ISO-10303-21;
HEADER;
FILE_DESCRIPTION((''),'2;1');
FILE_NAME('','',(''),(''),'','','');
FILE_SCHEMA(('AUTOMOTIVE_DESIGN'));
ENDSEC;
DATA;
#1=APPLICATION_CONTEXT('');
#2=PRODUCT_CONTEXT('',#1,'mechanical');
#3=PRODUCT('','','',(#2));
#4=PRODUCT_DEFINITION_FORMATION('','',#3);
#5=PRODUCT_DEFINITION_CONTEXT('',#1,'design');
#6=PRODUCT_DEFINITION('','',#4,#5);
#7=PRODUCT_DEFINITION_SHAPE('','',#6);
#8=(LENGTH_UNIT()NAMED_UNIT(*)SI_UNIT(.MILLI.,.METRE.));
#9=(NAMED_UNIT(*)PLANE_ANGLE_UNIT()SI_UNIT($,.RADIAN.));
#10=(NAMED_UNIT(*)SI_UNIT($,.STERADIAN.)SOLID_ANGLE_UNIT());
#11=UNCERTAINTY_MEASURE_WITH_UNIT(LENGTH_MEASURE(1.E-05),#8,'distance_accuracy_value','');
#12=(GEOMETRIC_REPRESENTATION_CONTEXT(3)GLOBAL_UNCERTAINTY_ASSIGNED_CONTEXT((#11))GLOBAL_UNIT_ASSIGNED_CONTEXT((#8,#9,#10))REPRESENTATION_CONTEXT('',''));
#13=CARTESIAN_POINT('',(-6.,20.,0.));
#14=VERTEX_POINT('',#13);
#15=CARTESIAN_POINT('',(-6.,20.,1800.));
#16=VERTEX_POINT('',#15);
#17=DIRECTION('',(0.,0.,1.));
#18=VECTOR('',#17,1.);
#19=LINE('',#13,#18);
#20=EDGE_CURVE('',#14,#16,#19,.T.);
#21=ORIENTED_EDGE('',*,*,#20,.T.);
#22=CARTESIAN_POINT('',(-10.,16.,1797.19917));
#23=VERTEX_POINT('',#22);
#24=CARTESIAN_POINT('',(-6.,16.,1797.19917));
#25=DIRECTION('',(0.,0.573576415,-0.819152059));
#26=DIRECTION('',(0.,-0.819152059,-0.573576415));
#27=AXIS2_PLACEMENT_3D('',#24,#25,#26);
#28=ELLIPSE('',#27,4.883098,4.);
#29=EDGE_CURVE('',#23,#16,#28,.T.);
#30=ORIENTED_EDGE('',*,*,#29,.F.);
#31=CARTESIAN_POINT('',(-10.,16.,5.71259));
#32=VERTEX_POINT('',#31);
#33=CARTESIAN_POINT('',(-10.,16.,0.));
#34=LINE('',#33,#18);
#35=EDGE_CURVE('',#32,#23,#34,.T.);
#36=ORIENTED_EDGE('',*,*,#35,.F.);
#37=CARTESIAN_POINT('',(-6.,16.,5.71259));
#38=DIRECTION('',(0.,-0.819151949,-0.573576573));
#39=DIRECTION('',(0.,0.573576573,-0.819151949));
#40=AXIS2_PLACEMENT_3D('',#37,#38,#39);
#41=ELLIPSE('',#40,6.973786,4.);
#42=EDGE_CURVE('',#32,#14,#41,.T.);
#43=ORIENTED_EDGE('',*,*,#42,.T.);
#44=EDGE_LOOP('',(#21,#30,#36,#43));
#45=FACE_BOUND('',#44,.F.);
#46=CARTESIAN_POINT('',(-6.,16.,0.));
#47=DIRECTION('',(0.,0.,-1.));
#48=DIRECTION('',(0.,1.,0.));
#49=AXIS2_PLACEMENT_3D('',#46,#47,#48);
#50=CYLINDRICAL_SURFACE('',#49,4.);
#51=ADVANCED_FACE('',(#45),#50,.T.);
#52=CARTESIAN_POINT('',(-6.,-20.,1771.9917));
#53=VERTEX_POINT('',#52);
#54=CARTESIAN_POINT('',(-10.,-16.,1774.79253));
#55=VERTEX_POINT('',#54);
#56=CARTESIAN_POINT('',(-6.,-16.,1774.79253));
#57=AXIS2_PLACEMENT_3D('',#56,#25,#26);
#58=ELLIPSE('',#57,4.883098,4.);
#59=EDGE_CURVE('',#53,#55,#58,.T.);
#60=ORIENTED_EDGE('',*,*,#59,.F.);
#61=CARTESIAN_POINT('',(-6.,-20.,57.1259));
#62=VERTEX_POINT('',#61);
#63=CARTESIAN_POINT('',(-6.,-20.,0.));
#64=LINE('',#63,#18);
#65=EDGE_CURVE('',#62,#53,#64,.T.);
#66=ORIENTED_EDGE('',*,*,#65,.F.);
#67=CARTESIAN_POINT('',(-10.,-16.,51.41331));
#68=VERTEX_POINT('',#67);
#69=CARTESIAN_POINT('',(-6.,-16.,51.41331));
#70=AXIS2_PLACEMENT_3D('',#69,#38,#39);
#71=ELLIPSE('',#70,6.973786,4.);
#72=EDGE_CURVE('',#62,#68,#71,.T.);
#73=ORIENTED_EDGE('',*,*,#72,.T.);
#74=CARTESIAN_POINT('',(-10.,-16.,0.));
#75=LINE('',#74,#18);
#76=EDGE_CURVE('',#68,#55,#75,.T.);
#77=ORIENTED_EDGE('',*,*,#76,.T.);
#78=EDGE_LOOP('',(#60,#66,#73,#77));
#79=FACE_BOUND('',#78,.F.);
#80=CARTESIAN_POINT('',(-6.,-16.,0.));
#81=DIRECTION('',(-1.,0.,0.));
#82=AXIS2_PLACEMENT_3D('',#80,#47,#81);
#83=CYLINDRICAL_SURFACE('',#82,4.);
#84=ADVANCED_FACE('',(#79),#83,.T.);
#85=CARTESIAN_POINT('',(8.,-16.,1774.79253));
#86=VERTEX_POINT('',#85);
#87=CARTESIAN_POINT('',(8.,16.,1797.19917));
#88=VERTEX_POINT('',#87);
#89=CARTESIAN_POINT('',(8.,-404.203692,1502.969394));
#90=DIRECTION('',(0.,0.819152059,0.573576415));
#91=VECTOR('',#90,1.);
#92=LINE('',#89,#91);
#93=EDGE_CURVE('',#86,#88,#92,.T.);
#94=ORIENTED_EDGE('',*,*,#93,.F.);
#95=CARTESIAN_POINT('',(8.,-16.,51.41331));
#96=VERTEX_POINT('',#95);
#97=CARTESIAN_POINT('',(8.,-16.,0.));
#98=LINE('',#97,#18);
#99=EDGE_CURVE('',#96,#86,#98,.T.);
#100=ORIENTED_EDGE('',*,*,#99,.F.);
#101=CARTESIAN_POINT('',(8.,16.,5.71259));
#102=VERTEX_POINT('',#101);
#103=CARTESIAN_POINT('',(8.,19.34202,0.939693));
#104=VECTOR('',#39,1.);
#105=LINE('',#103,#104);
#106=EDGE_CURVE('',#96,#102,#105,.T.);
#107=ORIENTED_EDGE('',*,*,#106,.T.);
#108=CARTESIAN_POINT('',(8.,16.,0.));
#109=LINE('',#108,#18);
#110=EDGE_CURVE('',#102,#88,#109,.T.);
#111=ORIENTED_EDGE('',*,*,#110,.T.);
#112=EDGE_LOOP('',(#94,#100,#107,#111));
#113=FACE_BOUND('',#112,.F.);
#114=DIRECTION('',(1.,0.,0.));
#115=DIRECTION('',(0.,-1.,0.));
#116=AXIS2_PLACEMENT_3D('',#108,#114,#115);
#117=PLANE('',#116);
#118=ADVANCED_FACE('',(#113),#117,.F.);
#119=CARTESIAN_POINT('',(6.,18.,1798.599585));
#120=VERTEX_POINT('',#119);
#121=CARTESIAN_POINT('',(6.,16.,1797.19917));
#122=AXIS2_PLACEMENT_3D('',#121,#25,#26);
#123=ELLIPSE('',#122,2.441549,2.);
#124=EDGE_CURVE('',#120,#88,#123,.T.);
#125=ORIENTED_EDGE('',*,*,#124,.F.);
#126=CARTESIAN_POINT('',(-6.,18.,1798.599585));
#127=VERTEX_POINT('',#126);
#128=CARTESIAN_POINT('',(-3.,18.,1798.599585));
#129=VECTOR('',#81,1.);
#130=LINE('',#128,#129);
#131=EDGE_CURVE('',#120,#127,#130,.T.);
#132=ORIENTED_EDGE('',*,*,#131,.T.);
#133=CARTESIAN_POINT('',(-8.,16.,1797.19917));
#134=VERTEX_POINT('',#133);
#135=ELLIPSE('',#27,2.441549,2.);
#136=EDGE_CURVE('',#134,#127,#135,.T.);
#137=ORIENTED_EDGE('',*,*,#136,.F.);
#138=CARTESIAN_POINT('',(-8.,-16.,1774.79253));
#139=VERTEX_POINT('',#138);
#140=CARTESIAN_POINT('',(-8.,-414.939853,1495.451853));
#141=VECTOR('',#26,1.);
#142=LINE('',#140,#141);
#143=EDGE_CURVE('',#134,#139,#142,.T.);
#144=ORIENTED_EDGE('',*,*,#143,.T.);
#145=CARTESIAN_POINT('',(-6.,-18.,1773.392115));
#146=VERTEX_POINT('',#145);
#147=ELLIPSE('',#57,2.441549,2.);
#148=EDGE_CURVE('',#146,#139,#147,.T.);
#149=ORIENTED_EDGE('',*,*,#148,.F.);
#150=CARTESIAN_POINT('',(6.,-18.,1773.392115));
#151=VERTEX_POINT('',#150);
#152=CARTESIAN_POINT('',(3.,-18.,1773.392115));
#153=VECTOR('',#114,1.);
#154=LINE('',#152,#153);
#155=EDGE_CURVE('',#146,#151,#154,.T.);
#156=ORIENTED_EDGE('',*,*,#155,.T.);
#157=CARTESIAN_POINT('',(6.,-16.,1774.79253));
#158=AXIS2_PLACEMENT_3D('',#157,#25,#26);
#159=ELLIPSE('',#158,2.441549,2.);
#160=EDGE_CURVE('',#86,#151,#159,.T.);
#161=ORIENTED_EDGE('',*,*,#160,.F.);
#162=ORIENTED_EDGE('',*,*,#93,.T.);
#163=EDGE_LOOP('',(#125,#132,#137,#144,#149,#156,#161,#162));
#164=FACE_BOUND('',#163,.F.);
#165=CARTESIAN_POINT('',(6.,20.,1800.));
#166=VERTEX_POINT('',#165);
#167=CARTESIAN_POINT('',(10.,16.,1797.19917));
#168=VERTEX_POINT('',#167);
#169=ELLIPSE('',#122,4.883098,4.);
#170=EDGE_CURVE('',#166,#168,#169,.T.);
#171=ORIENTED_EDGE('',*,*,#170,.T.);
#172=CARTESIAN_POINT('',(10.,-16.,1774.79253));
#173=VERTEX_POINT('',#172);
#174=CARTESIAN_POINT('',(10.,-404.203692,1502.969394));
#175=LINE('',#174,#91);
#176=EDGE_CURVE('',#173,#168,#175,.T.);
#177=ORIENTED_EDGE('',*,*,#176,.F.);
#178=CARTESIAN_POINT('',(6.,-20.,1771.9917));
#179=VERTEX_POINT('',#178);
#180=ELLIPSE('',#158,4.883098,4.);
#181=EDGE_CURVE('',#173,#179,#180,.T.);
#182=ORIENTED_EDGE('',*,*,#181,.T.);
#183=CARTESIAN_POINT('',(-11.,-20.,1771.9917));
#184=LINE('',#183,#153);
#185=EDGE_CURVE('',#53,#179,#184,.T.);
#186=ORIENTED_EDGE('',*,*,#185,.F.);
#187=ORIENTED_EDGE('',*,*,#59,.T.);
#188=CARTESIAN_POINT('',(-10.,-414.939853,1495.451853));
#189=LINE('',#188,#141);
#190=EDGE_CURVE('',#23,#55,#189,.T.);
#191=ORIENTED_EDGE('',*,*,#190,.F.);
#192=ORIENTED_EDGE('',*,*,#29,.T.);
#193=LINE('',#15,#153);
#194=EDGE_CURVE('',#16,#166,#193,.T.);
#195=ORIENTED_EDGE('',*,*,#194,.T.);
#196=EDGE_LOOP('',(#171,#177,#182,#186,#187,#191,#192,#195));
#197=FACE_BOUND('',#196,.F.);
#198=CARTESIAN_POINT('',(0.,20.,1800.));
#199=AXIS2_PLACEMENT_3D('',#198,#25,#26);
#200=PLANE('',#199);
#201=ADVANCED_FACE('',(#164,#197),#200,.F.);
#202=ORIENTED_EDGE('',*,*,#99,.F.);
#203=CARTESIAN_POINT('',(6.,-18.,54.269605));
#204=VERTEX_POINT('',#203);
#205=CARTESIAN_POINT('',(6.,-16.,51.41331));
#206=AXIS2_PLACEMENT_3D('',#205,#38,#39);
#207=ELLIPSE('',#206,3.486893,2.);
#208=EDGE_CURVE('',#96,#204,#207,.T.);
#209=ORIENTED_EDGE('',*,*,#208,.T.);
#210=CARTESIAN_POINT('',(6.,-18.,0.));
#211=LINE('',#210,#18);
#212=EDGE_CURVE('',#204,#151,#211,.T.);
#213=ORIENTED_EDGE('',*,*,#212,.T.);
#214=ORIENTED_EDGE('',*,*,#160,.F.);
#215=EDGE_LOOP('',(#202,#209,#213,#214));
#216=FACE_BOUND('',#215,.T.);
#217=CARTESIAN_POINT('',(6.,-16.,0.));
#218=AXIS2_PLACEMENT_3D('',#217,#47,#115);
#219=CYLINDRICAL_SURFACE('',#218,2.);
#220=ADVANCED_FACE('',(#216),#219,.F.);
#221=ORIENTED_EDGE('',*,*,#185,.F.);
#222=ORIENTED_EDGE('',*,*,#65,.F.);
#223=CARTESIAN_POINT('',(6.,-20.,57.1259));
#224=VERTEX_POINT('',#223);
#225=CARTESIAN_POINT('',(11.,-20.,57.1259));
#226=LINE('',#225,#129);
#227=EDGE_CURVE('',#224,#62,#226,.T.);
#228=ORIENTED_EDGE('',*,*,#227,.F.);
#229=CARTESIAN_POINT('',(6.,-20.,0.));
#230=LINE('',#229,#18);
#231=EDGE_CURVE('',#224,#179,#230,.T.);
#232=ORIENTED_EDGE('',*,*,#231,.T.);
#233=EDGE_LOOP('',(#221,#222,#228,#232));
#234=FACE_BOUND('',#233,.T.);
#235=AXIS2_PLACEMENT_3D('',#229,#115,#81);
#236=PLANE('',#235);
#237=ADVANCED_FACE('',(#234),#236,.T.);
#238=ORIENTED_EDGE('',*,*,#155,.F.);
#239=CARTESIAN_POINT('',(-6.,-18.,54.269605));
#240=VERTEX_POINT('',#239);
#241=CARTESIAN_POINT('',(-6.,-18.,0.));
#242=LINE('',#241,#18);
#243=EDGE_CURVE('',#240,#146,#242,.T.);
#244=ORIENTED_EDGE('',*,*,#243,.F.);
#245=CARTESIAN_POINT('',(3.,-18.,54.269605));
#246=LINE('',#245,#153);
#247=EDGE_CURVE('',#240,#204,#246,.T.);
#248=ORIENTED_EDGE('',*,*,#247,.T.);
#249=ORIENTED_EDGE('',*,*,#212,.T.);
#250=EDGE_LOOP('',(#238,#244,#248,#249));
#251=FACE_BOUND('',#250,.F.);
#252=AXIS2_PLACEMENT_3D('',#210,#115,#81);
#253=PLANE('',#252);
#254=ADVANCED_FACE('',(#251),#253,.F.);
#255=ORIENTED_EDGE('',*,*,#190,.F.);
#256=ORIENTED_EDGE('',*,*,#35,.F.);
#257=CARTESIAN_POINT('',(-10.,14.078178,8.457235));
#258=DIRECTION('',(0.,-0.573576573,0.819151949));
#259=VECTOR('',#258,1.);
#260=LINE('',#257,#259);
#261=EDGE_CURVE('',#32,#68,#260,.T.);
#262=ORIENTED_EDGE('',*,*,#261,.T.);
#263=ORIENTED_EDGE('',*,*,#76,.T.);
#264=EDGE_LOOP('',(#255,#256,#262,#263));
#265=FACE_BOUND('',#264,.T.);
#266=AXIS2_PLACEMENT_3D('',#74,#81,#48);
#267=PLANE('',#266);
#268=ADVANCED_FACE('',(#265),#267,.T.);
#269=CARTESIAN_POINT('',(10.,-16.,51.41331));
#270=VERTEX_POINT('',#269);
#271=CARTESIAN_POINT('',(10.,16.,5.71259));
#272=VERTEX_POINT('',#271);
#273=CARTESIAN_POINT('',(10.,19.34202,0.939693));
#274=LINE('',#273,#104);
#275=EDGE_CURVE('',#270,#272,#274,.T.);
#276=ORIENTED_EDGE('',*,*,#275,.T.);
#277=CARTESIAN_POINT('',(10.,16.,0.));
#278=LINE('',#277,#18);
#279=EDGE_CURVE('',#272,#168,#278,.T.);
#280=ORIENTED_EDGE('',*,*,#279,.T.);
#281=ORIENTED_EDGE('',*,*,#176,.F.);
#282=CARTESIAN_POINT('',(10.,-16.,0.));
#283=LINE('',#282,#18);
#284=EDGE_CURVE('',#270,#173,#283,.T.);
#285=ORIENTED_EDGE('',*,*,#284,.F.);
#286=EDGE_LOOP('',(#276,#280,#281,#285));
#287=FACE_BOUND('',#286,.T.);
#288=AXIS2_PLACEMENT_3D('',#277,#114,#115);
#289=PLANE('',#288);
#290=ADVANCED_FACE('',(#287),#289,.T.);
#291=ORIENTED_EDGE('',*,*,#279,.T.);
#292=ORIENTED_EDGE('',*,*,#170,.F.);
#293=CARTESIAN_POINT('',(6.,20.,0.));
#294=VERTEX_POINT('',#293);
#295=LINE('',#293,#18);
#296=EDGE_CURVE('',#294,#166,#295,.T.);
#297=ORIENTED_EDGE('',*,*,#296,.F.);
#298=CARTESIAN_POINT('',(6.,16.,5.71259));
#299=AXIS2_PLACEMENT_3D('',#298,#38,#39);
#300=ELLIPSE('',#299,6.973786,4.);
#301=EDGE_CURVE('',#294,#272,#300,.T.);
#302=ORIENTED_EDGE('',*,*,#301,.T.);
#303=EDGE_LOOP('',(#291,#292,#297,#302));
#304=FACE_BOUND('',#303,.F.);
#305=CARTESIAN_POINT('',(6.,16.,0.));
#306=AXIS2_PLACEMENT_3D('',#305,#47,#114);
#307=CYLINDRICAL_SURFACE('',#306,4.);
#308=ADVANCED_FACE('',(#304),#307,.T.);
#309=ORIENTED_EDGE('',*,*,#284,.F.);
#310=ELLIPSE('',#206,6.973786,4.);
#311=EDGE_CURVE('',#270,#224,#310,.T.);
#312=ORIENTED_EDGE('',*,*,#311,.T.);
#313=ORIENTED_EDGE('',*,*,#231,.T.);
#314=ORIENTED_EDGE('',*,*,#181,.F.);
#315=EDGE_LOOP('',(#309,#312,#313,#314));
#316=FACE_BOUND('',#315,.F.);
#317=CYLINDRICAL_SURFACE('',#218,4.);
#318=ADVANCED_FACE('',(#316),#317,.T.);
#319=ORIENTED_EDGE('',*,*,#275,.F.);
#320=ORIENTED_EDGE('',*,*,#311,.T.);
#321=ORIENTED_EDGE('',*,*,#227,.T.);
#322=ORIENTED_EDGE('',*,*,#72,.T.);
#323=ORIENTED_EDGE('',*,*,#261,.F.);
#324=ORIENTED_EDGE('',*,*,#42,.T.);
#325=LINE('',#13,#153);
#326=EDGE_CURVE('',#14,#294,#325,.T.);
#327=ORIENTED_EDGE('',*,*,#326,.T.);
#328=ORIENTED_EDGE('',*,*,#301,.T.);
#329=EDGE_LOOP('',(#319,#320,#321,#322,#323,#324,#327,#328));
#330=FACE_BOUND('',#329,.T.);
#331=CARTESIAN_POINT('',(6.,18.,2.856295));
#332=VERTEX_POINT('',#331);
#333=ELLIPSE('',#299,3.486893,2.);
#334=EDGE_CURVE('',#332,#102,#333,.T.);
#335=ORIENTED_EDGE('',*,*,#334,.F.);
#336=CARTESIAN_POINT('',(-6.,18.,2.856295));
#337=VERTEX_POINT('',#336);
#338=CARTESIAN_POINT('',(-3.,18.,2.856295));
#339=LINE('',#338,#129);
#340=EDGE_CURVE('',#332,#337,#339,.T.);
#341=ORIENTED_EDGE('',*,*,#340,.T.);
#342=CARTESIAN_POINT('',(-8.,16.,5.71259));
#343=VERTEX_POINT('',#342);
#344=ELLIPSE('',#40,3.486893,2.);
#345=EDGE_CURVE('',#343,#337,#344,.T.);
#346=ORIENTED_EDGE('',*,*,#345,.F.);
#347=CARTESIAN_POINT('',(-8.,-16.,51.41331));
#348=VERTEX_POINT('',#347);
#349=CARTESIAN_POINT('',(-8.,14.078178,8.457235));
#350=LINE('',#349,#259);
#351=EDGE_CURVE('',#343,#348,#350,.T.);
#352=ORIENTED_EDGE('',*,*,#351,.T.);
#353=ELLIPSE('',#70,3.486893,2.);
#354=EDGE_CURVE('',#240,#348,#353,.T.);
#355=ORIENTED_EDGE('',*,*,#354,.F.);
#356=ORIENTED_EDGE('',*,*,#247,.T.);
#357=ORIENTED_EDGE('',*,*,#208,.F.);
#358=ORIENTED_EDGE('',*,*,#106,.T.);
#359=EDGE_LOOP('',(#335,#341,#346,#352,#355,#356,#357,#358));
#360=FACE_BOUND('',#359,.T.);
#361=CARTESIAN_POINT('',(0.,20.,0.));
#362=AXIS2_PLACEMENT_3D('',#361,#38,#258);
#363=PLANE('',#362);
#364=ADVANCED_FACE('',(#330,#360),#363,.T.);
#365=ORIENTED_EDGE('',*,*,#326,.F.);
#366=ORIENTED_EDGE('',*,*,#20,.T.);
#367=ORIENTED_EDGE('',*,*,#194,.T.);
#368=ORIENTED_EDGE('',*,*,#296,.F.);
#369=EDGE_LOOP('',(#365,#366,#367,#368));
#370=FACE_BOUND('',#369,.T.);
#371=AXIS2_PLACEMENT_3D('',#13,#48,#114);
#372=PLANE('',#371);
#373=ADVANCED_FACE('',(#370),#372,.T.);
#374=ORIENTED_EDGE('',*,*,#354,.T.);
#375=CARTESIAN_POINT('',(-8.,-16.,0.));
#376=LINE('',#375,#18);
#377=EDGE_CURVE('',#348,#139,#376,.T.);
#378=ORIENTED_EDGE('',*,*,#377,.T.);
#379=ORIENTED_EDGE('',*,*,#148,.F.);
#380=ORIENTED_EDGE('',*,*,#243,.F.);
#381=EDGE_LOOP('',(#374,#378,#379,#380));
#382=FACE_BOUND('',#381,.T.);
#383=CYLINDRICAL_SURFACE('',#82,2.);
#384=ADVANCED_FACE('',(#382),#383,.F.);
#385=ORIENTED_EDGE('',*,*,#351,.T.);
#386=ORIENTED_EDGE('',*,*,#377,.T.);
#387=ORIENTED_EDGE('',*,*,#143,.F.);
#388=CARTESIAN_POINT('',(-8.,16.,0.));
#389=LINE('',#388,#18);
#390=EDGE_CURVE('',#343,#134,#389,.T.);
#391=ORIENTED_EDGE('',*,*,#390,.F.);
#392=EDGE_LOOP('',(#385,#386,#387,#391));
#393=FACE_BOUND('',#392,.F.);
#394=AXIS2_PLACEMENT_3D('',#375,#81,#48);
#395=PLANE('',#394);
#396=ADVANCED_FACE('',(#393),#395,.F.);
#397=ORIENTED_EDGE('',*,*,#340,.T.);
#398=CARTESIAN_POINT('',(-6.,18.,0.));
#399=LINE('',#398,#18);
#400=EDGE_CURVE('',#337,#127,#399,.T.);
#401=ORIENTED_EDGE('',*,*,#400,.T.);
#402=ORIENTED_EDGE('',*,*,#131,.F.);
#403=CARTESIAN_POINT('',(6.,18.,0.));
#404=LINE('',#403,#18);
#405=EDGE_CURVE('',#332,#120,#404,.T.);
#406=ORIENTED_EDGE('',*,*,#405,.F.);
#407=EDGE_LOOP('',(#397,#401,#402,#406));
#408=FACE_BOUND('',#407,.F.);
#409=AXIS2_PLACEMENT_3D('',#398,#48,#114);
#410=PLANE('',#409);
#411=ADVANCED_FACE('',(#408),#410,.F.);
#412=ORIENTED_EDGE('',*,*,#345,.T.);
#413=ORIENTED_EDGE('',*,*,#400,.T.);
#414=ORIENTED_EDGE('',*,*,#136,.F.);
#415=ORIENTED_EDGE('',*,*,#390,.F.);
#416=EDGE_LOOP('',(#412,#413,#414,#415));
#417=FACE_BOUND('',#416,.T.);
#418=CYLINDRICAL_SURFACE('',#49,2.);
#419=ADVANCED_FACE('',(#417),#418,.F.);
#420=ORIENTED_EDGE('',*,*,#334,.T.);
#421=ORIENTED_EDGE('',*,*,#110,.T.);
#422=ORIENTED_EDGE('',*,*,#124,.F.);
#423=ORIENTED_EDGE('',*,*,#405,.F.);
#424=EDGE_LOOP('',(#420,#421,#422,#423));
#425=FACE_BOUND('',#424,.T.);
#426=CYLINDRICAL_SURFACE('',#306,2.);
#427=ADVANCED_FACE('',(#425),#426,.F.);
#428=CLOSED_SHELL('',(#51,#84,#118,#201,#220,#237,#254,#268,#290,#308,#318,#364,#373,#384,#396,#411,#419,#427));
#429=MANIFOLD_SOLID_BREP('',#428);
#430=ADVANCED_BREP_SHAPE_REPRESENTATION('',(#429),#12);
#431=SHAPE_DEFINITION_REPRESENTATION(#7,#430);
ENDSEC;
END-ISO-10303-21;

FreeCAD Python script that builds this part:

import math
import FreeCAD as App
import Part
import Sketcher
from FreeCAD import Vector
Q = App.Units.Quantity


def add_polygon(sketch, points):
    """Adds a closed chain of lines whose ends are joined by coincident constraints."""
    first, n = sketch.GeometryCount, len(points)
    for a, b in zip(points, points[1:] + points[:1]):
        sketch.addGeometry(Part.LineSegment(App.Vector(*a, 0), App.Vector(*b, 0)), False)
    for i in range(n):
        sketch.addConstraint(Sketcher.Constraint("Coincident", first + i, 2, first + (i + 1) % n, 1))

doc = App.newDocument("Part")
body = doc.addObject("PartDesign::Body", "Body")

sketch1 = body.newObject("Sketcher::SketchObject", "Sketch")
sketch1.AttachmentSupport = (doc.getObject("XY_Plane"), [""])
sketch1.MapMode = "FlatFace"
sketch1.addGeometry([
    Part.LineSegment(Vector(-10, 16, 0), Vector(-10, -16, 0)),
    Part.ArcOfCircle(Part.Circle(Vector(-6, -16, 0), Vector(0, 0, 1), 4), math.radians(180), math.radians(270)),
    Part.LineSegment(Vector(-6, -20, 0), Vector(6, -20, 0)),
    Part.ArcOfCircle(Part.Circle(Vector(6, -16, 0), Vector(0, 0, 1), 4), math.radians(-90), math.radians(0)),
    Part.LineSegment(Vector(10, -16, 0), Vector(10, 16, 0)),
    Part.ArcOfCircle(Part.Circle(Vector(6, 16, 0), Vector(0, 0, 1), 4), math.radians(0), math.radians(90)),
    Part.LineSegment(Vector(6, 20, 0), Vector(-6, 20, 0)),
    Part.ArcOfCircle(Part.Circle(Vector(-6, 16, 0), Vector(0, 0, 1), 4), math.radians(90), math.radians(180)),
    Part.ArcOfCircle(Part.Circle(Vector(-6, 16, 0), Vector(0, 0, 1), 2), math.radians(90), math.radians(180)),
    Part.LineSegment(Vector(-6, 18, 0), Vector(6, 18, 0)),
    Part.ArcOfCircle(Part.Circle(Vector(6, 16, 0), Vector(0, 0, 1), 2), math.radians(0), math.radians(90)),
    Part.LineSegment(Vector(8, 16, 0), Vector(8, -16, 0)),
    Part.ArcOfCircle(Part.Circle(Vector(6, -16, 0), Vector(0, 0, 1), 2), math.radians(-90), math.radians(0)),
    Part.LineSegment(Vector(6, -18, 0), Vector(-6, -18, 0)),
    Part.ArcOfCircle(Part.Circle(Vector(-6, -16, 0), Vector(0, 0, 1), 2), math.radians(180), math.radians(270)),
    Part.LineSegment(Vector(-8, -16, 0), Vector(-8, 16, 0)),
], False)
sketch1.addConstraint([
    Sketcher.Constraint("Tangent", 0, 2, 1, 1),
    Sketcher.Constraint("Tangent", 1, 2, 2, 1),
    Sketcher.Constraint("Tangent", 2, 2, 3, 1),
    Sketcher.Constraint("Tangent", 3, 2, 4, 1),
    Sketcher.Constraint("Tangent", 4, 2, 5, 1),
    Sketcher.Constraint("Tangent", 5, 2, 6, 1),
    Sketcher.Constraint("Tangent", 6, 2, 7, 1),
    Sketcher.Constraint("Tangent", 7, 2, 0, 1),
    Sketcher.Constraint("Tangent", 8, 1, 9, 1),
    Sketcher.Constraint("Tangent", 9, 2, 10, 2),
    Sketcher.Constraint("Tangent", 10, 1, 11, 1),
    Sketcher.Constraint("Tangent", 11, 2, 12, 2),
    Sketcher.Constraint("Tangent", 12, 1, 13, 1),
    Sketcher.Constraint("Tangent", 13, 2, 14, 2),
    Sketcher.Constraint("Tangent", 14, 1, 15, 1),
    Sketcher.Constraint("Tangent", 15, 2, 8, 2),
    Sketcher.Constraint("Vertical", 0),
    Sketcher.Constraint("Horizontal", 2),
    Sketcher.Constraint("Vertical", 4),
    Sketcher.Constraint("Horizontal", 6),
    Sketcher.Constraint("Horizontal", 9),
    Sketcher.Constraint("Vertical", 11),
    Sketcher.Constraint("Horizontal", 13),
    Sketcher.Constraint("Vertical", 15),
    Sketcher.Constraint("Coincident", 8, 3, 7, 3),
    Sketcher.Constraint("Coincident", 10, 3, 5, 3),
    Sketcher.Constraint("Coincident", 12, 3, 3, 3),
    Sketcher.Constraint("Equal", 1, 3),
    Sketcher.Constraint("Equal", 3, 5),
    Sketcher.Constraint("Equal", 5, 7),
    Sketcher.Constraint("Equal", 12, 14),
    Sketcher.Constraint("Symmetric", 1, 3, 5, 3, -1, 1),
    Sketcher.Constraint("Radius", 1, Q("4 mm")),
    Sketcher.Constraint("Radius", 8, Q("2 mm")),
    Sketcher.Constraint("DistanceX", 0, 2, -1, 1, Q("10 mm")),
    Sketcher.Constraint("DistanceY", 1, 2, -1, 1, Q("20 mm")),
])
pad1 = body.newObject("PartDesign::Pad", "Pad")
pad1.Profile = sketch1
pad1.Length = 1800

sketch2 = body.newObject("Sketcher::SketchObject", "Sketch001")
sketch2.AttachmentSupport = (doc.getObject("YZ_Plane"), [""])
sketch2.MapMode = "FlatFace"
add_polygon(sketch2, [(-20, 57), (-20, 0), (20, 0)])
add_polygon(sketch2, [(-20, 1800), (-20, 1772), (20, 1800)])
sketch2.addConstraint([
    Sketcher.Constraint("Vertical", 0),
    Sketcher.Constraint("Horizontal", 1),
    Sketcher.Constraint("Vertical", 3),
    Sketcher.Constraint("Horizontal", 5),
    Sketcher.Constraint("Symmetric", 0, 2, 1, 2, -1, 1),
    Sketcher.Constraint("Perpendicular", 2, 4),
    Sketcher.Constraint("Vertical", 2, 2, 3, 2),
    Sketcher.Constraint("Vertical", 1, 2, 4, 2),
    Sketcher.Constraint("Angle", 4, Q("35 deg")),
    Sketcher.Constraint("DistanceX", 1, 1, 1, 2, Q("40 mm")),
    Sketcher.Constraint("DistanceY", -1, 1, 4, 2, Q("1800 mm")),
])
pocket1 = body.newObject("PartDesign::Pocket", "Pocket")
pocket1.Profile = sketch2
pocket1.Type = "ThroughAll"
pocket1.Midplane = True

doc.recompute()
